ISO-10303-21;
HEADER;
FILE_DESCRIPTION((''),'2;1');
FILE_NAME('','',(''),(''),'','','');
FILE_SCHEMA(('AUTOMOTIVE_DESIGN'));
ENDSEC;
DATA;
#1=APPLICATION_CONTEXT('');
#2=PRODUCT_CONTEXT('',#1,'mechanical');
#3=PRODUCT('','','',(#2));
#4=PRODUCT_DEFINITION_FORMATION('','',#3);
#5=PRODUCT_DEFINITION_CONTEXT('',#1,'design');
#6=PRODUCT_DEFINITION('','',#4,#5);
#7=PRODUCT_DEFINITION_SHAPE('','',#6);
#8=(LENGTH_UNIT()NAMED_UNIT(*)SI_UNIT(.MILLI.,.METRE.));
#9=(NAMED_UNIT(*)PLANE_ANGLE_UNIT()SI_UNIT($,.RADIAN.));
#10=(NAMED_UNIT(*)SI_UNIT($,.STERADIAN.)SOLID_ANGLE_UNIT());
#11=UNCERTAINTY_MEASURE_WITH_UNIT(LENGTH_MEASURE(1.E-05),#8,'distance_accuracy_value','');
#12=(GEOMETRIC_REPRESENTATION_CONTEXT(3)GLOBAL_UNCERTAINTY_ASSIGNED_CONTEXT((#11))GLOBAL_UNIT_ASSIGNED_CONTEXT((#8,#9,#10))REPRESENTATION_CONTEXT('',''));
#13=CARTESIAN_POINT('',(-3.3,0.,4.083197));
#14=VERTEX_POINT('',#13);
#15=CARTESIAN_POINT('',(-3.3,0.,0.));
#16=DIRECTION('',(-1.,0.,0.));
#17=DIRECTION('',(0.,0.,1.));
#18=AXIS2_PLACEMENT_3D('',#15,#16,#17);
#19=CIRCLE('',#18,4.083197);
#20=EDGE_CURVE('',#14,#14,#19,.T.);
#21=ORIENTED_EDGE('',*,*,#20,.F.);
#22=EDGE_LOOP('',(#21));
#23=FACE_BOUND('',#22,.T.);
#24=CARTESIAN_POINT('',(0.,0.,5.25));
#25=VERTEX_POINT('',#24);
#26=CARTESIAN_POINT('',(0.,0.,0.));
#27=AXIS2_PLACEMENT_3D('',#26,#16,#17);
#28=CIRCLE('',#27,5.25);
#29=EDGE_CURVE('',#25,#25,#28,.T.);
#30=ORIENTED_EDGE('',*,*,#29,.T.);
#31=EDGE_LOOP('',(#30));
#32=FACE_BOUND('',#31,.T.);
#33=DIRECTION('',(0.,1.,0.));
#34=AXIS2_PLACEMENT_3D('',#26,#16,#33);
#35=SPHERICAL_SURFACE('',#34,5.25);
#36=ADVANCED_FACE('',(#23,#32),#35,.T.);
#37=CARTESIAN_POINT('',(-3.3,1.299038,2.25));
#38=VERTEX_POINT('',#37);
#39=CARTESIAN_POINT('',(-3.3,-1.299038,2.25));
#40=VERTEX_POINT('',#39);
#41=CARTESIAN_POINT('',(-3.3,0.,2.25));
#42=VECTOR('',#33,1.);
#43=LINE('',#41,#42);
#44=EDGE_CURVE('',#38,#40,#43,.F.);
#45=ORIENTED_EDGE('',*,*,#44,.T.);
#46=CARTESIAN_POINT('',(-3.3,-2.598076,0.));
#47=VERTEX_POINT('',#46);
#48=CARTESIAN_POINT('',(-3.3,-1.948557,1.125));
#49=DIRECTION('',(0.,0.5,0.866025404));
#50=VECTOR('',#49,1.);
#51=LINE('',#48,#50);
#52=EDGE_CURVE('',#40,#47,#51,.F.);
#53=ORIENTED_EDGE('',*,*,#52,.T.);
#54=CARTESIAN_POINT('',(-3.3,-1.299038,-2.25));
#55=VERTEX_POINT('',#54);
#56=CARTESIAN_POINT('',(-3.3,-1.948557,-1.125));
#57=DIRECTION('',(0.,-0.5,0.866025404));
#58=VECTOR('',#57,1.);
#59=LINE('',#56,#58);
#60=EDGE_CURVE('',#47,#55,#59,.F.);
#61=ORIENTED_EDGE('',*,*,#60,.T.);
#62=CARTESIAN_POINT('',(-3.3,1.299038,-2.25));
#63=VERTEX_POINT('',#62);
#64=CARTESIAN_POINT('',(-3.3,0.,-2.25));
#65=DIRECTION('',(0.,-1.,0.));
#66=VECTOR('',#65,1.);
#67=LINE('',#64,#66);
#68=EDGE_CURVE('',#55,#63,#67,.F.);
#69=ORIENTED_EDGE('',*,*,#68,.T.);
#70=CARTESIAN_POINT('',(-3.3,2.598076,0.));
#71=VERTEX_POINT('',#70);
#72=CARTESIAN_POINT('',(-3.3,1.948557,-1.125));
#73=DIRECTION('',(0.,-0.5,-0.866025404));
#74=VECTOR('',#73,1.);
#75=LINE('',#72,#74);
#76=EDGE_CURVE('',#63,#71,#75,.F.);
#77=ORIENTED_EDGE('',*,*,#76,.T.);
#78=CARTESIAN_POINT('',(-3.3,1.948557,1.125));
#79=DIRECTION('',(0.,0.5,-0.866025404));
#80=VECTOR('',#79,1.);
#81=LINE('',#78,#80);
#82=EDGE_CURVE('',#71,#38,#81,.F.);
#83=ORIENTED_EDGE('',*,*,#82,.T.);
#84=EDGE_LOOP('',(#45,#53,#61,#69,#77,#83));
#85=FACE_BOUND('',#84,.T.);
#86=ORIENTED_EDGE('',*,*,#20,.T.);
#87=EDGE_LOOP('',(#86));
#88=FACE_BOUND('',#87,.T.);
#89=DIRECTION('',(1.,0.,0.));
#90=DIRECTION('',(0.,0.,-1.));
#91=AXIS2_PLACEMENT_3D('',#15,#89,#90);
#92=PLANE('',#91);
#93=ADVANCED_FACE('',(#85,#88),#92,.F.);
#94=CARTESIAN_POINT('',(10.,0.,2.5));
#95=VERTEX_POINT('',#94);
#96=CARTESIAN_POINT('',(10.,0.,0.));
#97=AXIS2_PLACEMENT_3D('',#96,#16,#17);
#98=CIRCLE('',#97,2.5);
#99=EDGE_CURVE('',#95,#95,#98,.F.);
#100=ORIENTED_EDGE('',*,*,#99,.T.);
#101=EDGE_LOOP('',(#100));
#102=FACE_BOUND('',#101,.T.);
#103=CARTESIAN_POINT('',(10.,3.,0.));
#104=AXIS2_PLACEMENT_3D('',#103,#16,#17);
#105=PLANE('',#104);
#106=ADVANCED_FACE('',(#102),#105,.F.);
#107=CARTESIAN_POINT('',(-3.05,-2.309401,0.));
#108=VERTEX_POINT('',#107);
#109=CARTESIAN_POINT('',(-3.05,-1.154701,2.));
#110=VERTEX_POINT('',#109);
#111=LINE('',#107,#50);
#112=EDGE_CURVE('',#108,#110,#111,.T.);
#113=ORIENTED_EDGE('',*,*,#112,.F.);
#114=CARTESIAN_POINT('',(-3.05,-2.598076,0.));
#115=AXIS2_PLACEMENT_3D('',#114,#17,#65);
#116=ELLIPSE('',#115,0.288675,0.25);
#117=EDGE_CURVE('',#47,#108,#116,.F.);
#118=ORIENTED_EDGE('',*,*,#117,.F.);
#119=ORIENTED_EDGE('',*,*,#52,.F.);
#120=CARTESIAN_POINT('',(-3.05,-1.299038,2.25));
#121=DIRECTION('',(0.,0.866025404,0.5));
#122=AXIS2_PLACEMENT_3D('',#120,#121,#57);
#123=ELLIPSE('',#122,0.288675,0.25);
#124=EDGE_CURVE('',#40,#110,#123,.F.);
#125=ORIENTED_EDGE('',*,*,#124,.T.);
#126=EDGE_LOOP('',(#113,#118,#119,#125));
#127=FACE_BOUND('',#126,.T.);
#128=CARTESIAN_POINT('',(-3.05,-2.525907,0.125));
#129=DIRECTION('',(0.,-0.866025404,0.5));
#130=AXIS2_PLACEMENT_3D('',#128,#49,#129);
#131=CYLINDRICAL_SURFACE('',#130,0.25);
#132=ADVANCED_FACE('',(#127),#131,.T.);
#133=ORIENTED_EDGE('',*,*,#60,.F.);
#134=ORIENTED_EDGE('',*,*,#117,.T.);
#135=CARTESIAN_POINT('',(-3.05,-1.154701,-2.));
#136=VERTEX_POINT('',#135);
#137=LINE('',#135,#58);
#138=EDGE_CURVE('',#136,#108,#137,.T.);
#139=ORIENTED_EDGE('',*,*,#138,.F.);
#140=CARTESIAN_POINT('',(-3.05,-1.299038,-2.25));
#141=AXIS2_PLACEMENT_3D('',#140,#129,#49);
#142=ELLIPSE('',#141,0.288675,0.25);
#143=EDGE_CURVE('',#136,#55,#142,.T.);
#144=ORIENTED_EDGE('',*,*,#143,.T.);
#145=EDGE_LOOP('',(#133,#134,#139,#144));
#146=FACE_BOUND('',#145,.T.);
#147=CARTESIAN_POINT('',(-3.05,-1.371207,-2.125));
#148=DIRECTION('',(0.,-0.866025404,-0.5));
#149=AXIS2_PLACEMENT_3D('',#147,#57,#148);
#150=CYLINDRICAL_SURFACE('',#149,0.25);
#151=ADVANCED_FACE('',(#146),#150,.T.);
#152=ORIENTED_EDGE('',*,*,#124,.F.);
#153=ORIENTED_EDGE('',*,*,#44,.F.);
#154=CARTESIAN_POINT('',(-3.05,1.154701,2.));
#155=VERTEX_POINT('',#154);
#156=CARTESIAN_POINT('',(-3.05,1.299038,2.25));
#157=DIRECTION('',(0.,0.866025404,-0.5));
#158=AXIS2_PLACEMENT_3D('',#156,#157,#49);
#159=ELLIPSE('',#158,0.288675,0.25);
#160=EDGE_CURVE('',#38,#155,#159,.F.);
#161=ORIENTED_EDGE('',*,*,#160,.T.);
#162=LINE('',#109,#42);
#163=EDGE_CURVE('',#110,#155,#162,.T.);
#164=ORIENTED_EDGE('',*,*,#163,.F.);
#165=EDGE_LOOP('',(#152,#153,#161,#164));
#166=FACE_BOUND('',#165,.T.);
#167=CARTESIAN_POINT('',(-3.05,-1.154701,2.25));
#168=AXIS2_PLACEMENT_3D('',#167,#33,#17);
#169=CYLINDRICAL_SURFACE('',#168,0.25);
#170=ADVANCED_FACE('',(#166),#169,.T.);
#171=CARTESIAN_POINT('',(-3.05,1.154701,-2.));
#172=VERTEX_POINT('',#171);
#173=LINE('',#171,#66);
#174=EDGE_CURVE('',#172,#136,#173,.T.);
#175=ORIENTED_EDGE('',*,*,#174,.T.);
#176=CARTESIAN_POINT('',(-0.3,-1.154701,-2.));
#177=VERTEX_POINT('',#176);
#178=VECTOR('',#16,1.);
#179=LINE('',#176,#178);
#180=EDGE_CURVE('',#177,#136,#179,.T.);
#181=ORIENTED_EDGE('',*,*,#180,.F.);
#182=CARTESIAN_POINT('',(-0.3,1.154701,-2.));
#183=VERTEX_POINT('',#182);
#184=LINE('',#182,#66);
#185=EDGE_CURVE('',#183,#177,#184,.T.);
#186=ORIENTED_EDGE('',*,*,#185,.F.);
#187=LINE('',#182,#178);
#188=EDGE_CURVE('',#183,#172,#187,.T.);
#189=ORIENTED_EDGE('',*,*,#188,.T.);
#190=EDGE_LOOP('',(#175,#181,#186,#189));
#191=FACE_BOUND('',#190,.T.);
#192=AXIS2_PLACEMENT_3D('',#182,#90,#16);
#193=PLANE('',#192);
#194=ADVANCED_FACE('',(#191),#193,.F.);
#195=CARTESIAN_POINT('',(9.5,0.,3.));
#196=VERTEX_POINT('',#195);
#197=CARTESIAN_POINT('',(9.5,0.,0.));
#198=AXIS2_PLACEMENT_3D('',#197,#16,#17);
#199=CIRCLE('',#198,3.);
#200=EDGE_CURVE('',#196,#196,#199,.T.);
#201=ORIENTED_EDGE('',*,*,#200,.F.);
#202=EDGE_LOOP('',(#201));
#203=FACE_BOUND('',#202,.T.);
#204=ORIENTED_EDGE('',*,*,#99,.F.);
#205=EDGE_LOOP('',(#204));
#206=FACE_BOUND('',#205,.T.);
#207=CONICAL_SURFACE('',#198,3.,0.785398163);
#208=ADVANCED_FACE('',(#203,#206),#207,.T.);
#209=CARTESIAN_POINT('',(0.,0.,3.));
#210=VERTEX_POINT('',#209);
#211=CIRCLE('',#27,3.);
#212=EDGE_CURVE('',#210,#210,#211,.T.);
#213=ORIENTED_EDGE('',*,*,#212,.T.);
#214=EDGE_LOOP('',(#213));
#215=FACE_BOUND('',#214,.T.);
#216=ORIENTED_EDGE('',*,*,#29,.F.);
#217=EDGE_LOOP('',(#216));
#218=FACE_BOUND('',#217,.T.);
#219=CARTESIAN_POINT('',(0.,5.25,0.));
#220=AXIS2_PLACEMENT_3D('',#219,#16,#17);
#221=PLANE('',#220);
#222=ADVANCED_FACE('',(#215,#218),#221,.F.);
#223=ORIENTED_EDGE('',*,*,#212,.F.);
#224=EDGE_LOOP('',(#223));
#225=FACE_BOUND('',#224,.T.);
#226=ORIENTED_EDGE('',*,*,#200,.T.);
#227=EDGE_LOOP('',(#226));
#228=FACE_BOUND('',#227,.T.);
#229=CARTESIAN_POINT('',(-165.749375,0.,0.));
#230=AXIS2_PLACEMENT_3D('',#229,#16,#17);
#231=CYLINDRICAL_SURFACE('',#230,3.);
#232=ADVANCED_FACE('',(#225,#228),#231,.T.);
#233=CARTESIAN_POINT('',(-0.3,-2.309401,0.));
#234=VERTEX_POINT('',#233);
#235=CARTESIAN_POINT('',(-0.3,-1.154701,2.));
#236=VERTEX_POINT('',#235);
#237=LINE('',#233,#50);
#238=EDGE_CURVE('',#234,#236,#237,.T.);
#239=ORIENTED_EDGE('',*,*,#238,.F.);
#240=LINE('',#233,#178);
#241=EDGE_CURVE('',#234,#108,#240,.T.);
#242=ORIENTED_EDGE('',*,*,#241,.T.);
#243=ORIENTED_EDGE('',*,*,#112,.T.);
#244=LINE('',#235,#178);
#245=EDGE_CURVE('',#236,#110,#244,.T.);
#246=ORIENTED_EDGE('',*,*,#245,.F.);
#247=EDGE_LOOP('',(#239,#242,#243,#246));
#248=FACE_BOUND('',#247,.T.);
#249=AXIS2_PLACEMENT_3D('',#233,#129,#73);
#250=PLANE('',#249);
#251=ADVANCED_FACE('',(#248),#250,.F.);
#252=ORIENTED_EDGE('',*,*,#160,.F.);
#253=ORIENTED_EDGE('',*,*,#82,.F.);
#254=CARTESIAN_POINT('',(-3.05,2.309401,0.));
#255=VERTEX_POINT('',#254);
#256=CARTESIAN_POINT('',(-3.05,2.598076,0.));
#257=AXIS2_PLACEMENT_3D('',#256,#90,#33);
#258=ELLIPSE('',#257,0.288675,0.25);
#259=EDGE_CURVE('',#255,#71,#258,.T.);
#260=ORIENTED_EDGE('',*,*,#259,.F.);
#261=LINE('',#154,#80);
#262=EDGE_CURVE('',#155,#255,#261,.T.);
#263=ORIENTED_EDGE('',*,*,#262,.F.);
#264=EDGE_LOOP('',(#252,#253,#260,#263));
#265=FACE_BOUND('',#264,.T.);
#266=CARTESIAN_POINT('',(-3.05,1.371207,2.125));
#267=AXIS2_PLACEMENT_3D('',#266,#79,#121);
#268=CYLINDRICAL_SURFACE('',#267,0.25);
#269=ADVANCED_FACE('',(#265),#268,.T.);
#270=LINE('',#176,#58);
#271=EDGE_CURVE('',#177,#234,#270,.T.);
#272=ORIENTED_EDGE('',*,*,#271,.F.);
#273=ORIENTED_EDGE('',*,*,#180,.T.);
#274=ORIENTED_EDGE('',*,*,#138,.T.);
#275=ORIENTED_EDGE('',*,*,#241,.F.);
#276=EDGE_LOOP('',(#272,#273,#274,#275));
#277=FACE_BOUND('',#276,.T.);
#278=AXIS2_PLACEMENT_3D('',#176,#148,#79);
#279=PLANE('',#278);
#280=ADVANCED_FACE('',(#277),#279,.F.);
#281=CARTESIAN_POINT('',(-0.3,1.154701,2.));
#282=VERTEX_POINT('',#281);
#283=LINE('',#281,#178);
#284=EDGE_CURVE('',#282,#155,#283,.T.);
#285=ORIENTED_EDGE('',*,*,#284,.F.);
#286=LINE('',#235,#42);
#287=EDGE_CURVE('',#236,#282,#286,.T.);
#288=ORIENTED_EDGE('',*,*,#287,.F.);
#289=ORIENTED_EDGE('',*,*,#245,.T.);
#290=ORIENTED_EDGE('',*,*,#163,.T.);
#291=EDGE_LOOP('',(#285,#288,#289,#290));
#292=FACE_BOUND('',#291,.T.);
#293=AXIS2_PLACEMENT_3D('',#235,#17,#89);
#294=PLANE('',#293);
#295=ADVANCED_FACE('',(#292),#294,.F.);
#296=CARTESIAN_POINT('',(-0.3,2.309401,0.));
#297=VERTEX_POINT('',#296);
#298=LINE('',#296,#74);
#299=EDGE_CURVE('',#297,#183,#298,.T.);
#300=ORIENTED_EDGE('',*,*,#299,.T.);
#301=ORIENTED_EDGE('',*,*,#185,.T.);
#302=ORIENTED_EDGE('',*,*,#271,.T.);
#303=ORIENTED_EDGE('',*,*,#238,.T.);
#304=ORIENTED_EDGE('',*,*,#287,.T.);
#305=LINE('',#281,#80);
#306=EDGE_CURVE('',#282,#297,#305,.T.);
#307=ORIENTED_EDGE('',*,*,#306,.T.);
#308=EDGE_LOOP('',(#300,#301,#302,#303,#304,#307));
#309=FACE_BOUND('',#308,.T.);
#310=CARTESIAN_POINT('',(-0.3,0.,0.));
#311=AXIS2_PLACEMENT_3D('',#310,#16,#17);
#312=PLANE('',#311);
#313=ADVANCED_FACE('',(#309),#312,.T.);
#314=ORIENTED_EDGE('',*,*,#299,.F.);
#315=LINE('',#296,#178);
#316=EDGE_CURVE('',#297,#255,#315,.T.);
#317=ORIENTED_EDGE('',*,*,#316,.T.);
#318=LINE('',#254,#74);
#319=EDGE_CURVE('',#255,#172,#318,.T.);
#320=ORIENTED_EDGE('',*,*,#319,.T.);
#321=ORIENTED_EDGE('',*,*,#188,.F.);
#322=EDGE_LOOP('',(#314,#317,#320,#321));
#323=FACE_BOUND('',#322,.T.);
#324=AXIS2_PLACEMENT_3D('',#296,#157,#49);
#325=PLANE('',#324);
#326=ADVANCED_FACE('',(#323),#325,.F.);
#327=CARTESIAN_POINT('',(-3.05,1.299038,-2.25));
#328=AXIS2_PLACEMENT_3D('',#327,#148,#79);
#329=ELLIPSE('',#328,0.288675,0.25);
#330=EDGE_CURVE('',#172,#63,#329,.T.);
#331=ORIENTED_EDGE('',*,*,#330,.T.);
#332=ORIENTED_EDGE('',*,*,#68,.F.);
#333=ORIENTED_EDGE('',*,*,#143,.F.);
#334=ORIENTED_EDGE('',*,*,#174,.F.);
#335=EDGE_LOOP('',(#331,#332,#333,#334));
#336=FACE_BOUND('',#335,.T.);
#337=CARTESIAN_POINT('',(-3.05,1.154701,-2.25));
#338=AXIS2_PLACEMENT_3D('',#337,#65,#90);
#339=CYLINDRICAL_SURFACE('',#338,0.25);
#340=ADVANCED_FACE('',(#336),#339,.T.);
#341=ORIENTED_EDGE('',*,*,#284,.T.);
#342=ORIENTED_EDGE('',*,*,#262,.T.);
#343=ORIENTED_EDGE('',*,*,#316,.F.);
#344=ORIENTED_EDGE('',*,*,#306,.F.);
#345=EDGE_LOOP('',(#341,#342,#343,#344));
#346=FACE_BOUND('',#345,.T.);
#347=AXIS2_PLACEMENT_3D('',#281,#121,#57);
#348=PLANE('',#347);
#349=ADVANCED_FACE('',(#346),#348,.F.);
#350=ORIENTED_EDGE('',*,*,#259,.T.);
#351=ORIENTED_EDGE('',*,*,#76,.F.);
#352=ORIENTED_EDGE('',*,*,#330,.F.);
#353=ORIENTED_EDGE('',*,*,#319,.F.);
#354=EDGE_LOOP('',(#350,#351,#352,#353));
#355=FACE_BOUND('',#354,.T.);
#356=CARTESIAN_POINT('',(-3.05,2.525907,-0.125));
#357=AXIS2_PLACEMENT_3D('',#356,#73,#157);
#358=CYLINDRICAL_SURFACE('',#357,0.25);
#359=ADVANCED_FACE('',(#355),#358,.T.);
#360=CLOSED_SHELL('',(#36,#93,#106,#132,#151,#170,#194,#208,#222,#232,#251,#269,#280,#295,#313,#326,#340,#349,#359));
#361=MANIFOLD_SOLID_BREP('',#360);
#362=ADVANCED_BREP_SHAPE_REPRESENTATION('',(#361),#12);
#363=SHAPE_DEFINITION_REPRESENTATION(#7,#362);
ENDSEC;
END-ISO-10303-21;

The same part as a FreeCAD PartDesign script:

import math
import FreeCAD as App
import Part
import Sketcher

V = App.Vector
Q = App.Units.Quantity


def edges_at(feature, points):
    """Names of the edges that pass closest to the given points."""
    edges = feature.Shape.Edges
    near = lambda p: min(range(len(edges)), key=lambda i: edges[i].distToShape(Part.Vertex(*p))[0])
    return sorted({f"Edge{near(p) + 1}" for p in points})

doc = App.newDocument("Part")
body = doc.addObject("PartDesign::Body", "Body")

# Sketch on XY plane
sketch1 = body.newObject("Sketcher::SketchObject", "Sketch")
sketch1.AttachmentSupport = (doc.getObject("XY_Plane"), [""])
sketch1.MapMode = "FlatFace"
sketch1.addGeometry([
    Part.LineSegment(V(0, 3, 0), V(0, 5.2, 0)),  # 0
    Part.ArcOfCircle(Part.Circle(V(0, 0, 0), V(0, 0, 1), 5.2), math.radians(90), math.radians(129)),  # 1
    Part.LineSegment(V(-3.3, 4.1, 0), V(-3.3, 0, 0)),  # 2
    Part.LineSegment(V(-3.3, 0, 0), V(10, 0, 0)),  # 3
    Part.LineSegment(V(10, 0, 0), V(10, 3, 0)),  # 4
    Part.LineSegment(V(10, 3, 0), V(0, 3, 0)),  # 5
], False)
sketch1.addConstraint([
    Sketcher.Constraint("Coincident", 0, 2, 1, 1),
    Sketcher.Constraint("Coincident", 1, 2, 2, 1),
    Sketcher.Constraint("Coincident", 2, 2, 3, 1),
    Sketcher.Constraint("Coincident", 3, 2, 4, 1),
    Sketcher.Constraint("Coincident", 4, 2, 5, 1),
    Sketcher.Constraint("Coincident", 5, 2, 0, 1),
    Sketcher.Constraint("Vertical", 0),
    Sketcher.Constraint("Vertical", 2),
    Sketcher.Constraint("Horizontal", 3),
    Sketcher.Constraint("Vertical", 4),
    Sketcher.Constraint("Horizontal", 5),
    Sketcher.Constraint("Coincident", 1, 3, -1, 1),
    Sketcher.Constraint("PointOnObject", 0, 2, -2),
    Sketcher.Constraint("PointOnObject", 2, 2, -1),
    Sketcher.Constraint("DistanceX", 5, 2, 5, 1, Q("10 mm")),
    Sketcher.Constraint("DistanceY", 4, 1, 4, 2, Q("3 mm")),
    Sketcher.Constraint("Radius", 1, Q("5.25 mm")),
    Sketcher.Constraint("DistanceX", 3, 1, 3, 2, Q("13.3 mm")),
])
revolution = body.newObject("PartDesign::Revolution", "Revolution")
revolution.Profile = sketch1
revolution.ReferenceAxis = (sketch1, ["H_Axis"])
revolution.Angle = 360

# Sketch on YZ plane
sketch2 = body.newObject("Sketcher::SketchObject", "Sketch001")
sketch2.AttachmentSupport = (doc.getObject("YZ_Plane"), [""])
sketch2.MapMode = "FlatFace"
sketch2.AttachmentOffset = App.Placement(V(0, 0, -3.3), App.Rotation())
sketch2.addGeometry([
    Part.LineSegment(V(-2.3, 0, 0), V(-1.2, 2, 0)),  # 0
    Part.LineSegment(V(-1.2, 2, 0), V(1.2, 2, 0)),  # 1
    Part.LineSegment(V(1.2, 2, 0), V(2.3, 0, 0)),  # 2
    Part.LineSegment(V(2.3, 0, 0), V(1.2, -2, 0)),  # 3
    Part.LineSegment(V(1.2, -2, 0), V(-1.2, -2, 0)),  # 4
    Part.LineSegment(V(-1.2, -2, 0), V(-2.3, 0, 0)),  # 5
], False)
sketch2.addConstraint([
    Sketcher.Constraint("Coincident", 0, 2, 1, 1),
    Sketcher.Constraint("Coincident", 1, 2, 2, 1),
    Sketcher.Constraint("Coincident", 2, 2, 3, 1),
    Sketcher.Constraint("Coincident", 3, 2, 4, 1),
    Sketcher.Constraint("Coincident", 4, 2, 5, 1),
    Sketcher.Constraint("Coincident", 5, 2, 0, 1),
    Sketcher.Constraint("Horizontal", 1),
    Sketcher.Constraint("Horizontal", 4),
    Sketcher.Constraint("Symmetric", 0, 2, 3, 2, -1, 1),
    Sketcher.Constraint("Symmetric", 2, 2, 5, 2, -1, 1),
    Sketcher.Constraint("PointOnObject", 2, 2, -1),
    Sketcher.Constraint("Parallel", 2, 5),
    Sketcher.Constraint("Vertical", 1, 2, 3, 2),
    Sketcher.Constraint("Angle", 0, Q("60 deg")),
    Sketcher.Constraint("DistanceY", -1, 1, 0, 2, Q("2 mm")),
    Sketcher.Constraint("DistanceX", 1, 1, 1, 2, Q("2.309401 mm")),
])
pocket1 = body.newObject("PartDesign::Pocket", "Pocket")
pocket1.Profile = sketch2
pocket1.Length = 3
pocket1.Reversed = True
doc.recompute()

fillet = body.newObject("PartDesign::Fillet", "Fillet")
fillet.Base = (pocket1, edges_at(pocket1, [
    (-3.3, -1.732, -1),
    (-3.3, -1.732, 1),
    (-3.3, 0, 2),
    (-3.3, 1.732, 1),
    (-3.3, 1.732, -1),
    (-3.3, 0, -2),
]))
fillet.Radius = 0.25
doc.recompute()

chamfer = body.newObject("PartDesign::Chamfer", "Chamfer")
chamfer.Base = (fillet, edges_at(fillet, [(10, -3, 0)]))
chamfer.Size = 0.5

doc.recompute()
